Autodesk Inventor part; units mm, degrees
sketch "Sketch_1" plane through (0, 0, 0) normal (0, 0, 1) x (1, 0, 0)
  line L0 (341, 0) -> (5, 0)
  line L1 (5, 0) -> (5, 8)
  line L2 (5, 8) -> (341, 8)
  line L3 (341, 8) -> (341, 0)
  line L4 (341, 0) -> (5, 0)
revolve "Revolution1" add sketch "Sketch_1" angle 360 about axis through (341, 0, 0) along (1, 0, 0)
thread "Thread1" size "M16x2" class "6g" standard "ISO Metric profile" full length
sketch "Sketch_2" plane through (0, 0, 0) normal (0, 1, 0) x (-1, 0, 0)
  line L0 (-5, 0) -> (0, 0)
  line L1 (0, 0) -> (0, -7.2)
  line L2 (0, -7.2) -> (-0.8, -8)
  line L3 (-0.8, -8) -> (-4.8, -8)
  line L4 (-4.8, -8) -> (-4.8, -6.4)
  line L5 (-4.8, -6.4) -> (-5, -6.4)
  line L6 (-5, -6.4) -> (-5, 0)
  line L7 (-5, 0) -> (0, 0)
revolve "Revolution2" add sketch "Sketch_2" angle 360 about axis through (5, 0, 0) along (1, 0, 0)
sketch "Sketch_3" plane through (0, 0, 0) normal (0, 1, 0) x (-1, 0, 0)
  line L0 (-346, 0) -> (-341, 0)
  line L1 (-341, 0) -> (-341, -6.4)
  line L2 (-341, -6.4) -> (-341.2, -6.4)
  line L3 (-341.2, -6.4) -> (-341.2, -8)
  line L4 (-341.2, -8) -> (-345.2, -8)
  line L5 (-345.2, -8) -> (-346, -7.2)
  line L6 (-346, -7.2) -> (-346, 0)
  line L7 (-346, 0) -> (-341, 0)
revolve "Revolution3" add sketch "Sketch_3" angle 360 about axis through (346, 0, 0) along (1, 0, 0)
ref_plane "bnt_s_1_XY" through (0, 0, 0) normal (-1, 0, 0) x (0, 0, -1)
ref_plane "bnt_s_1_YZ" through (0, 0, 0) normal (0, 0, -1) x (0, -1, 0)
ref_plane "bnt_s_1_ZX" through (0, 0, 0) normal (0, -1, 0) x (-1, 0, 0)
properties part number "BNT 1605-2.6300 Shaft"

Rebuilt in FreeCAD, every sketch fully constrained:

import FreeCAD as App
import Part
import Sketcher
from FreeCAD import Vector
Q = App.Units.Quantity


def add_polygon(sketch, points):
    """Adds a closed chain of lines whose ends are joined by coincident constraints."""
    first, n = sketch.GeometryCount, len(points)
    for a, b in zip(points, points[1:] + points[:1]):
        sketch.addGeometry(Part.LineSegment(App.Vector(*a, 0), App.Vector(*b, 0)), False)
    for i in range(n):
        sketch.addConstraint(Sketcher.Constraint("Coincident", first + i, 2, first + (i + 1) % n, 1))

doc = App.newDocument("Part")
body = doc.addObject("PartDesign::Body", "Body")

# Sketch on XY plane
sketch1 = body.newObject("Sketcher::SketchObject", "Sketch")
sketch1.AttachmentSupport = (doc.getObject("XY_Plane"), [""])
sketch1.MapMode = "FlatFace"
add_polygon(sketch1, [(5, 0), (341, 0), (341, 8), (5, 8)])  # lines 0-3
sketch1.addConstraint([
    Sketcher.Constraint("Horizontal", 0),
    Sketcher.Constraint("Vertical", 1),
    Sketcher.Constraint("Horizontal", 2),
    Sketcher.Constraint("Vertical", 3),
    Sketcher.Constraint("PointOnObject", 0, 2, -1),
    Sketcher.Constraint("DistanceX", 0, 1, 0, 2, 336.0),
    Sketcher.Constraint("DistanceY", 1, 1, 1, 2, 8.0),
    Sketcher.Constraint("DistanceX", -1, 1, 0, 2, 341.0),
])
revolution = body.newObject("PartDesign::Revolution", "Revolution")
revolution.Profile = sketch1
revolution.ReferenceAxis = (sketch1, ["H_Axis"])
revolution.Angle = 360

# Sketch on XZ plane
sketch2 = body.newObject("Sketcher::SketchObject", "Sketch001")
sketch2.AttachmentSupport = (doc.getObject("XZ_Plane"), [""])
sketch2.MapMode = "FlatFace"
add_polygon(sketch2, [(0, 0), (5, 0), (5, -6.4), (4.8, -6.4), (4.8, -8), (0.8, -8), (0, -7.2)])  # lines 0-6
sketch2.addConstraint([
    Sketcher.Constraint("Horizontal", 0),
    Sketcher.Constraint("Vertical", 1),
    Sketcher.Constraint("Horizontal", 2),
    Sketcher.Constraint("Vertical", 3),
    Sketcher.Constraint("Horizontal", 4),
    Sketcher.Constraint("Vertical", 6),
    Sketcher.Constraint("Coincident", 6, 2, -1, 1),
    Sketcher.Constraint("DistanceX", 0, 1, 0, 2, 5.0),
    Sketcher.Constraint("DistanceX", 4, 2, 4, 1, 4.0),
    Sketcher.Constraint("Angle", 5, Q("135 deg")),
    Sketcher.Constraint("DistanceX", 2, 2, 2, 1, 0.2),
    Sketcher.Constraint("DistanceY", 1, 2, 1, 1, 6.4),
    Sketcher.Constraint("DistanceY", 3, 2, 3, 1, 1.6),
])
revolution2 = body.newObject("PartDesign::Revolution", "Revolution001")
revolution2.Profile = sketch2
revolution2.ReferenceAxis = (sketch2, ["H_Axis"])
revolution2.Angle = 360

# Sketch on XZ plane
sketch3 = body.newObject("Sketcher::SketchObject", "Sketch002")
sketch3.AttachmentSupport = (doc.getObject("XZ_Plane"), [""])
sketch3.MapMode = "FlatFace"
add_polygon(sketch3, [(341, 0), (346, 0), (346, -7.2), (345.2, -8), (341.2, -8), (341.2, -6.4), (341, -6.4)])  # lines 0-6
sketch3.addConstraint([
    Sketcher.Constraint("Horizontal", 0),
    Sketcher.Constraint("Vertical", 1),
    Sketcher.Constraint("Horizontal", 3),
    Sketcher.Constraint("Vertical", 4),
    Sketcher.Constraint("Horizontal", 5),
    Sketcher.Constraint("Vertical", 6),
    Sketcher.Constraint("PointOnObject", 0, 2, -1),
    Sketcher.Constraint("DistanceX", 0, 1, 0, 2, 5.0),
    Sketcher.Constraint("DistanceX", 3, 2, 3, 1, 4.0),
    Sketcher.Constraint("Angle", 2, Q("-135 deg")),
    Sketcher.Constraint("DistanceX", 5, 2, 5, 1, 0.2),
    Sketcher.Constraint("DistanceY", 1, 2, 1, 1, 7.2),
    Sketcher.Constraint("DistanceY", 4, 1, 4, 2, 1.6),
    Sketcher.Constraint("DistanceX", -1, 1, 0, 2, 346.0),
])
revolution3 = body.newObject("PartDesign::Revolution", "Revolution002")
revolution3.Profile = sketch3
revolution3.ReferenceAxis = (sketch3, ["H_Axis"])
revolution3.Angle = 360

doc.recompute()
